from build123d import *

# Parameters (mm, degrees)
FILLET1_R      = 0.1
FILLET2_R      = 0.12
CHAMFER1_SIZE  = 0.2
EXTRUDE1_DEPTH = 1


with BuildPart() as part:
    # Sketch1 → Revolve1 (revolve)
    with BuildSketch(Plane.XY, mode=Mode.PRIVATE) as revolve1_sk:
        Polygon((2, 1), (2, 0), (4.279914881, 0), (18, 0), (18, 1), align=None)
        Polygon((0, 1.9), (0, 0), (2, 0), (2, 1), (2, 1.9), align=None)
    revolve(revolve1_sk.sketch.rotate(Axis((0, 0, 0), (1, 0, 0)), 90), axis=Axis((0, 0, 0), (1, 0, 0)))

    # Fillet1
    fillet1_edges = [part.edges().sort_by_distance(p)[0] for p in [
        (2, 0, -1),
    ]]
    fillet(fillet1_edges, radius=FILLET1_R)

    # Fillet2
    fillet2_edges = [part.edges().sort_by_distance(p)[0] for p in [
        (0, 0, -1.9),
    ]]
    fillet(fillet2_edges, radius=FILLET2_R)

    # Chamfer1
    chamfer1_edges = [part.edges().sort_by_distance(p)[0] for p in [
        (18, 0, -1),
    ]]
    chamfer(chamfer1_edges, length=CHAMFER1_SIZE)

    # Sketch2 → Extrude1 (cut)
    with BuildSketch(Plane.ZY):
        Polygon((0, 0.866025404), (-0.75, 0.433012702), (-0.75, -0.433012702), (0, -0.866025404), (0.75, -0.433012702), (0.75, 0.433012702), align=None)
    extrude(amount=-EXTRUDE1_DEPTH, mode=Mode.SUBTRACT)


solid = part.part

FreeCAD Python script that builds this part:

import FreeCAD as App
import Part
import Sketcher

V = App.Vector
Q = App.Units.Quantity


def edges_at(feature, points):
    """Names of the edges that pass closest to the given points."""
    edges = feature.Shape.Edges
    near = lambda p: min(range(len(edges)), key=lambda i: edges[i].distToShape(Part.Vertex(*p))[0])
    return sorted({f"Edge{near(p) + 1}" for p in points})

doc = App.newDocument("Part")
body = doc.addObject("PartDesign::Body", "Body")

sketch1 = body.newObject("Sketcher::SketchObject", "Sketch")
sketch1.AttachmentSupport = (doc.getObject("XY_Plane"), [""])
sketch1.MapMode = "FlatFace"
sketch1.addGeometry(Part.LineSegment(V(18, 0, 0), V(18, 1, 0)), False)
sketch1.addGeometry(Part.LineSegment(V(18, 1, 0), V(2, 1, 0)), False)
sketch1.addGeometry(Part.LineSegment(V(2, 1, 0), V(2, 1.9, 0)), False)
sketch1.addGeometry(Part.LineSegment(V(2, 1.9, 0), V(0, 1.9, 0)), False)
sketch1.addGeometry(Part.LineSegment(V(0, 1.9, 0), V(0, 0, 0)), False)
sketch1.addGeometry(Part.LineSegment(V(0, 0, 0), V(18, 0, 0)), False)
sketch1.addConstraint(Sketcher.Constraint("Coincident", 0, 2, 1, 1))
sketch1.addConstraint(Sketcher.Constraint("Coincident", 1, 2, 2, 1))
sketch1.addConstraint(Sketcher.Constraint("Coincident", 2, 2, 3, 1))
sketch1.addConstraint(Sketcher.Constraint("Coincident", 3, 2, 4, 1))
sketch1.addConstraint(Sketcher.Constraint("Coincident", 4, 2, 5, 1))
sketch1.addConstraint(Sketcher.Constraint("Coincident", 5, 2, 0, 1))
sketch1.addConstraint(Sketcher.Constraint("Vertical", 0))
sketch1.addConstraint(Sketcher.Constraint("Horizontal", 1))
sketch1.addConstraint(Sketcher.Constraint("Vertical", 2))
sketch1.addConstraint(Sketcher.Constraint("Horizontal", 3))
sketch1.addConstraint(Sketcher.Constraint("Vertical", 4))
sketch1.addConstraint(Sketcher.Constraint("Horizontal", 5))
sketch1.addConstraint(Sketcher.Constraint("Coincident", 4, 2, -1, 1))
sketch1.addConstraint(Sketcher.Constraint("DistanceX", 1, 2, 1, 1, 16.0))
sketch1.addConstraint(Sketcher.Constraint("DistanceX", 3, 2, 3, 1, 2.0))
sketch1.addConstraint(Sketcher.Constraint("DistanceY", 0, 1, 0, 2, 1.0))
sketch1.addConstraint(Sketcher.Constraint("DistanceY", 2, 1, 2, 2, 0.9))
revolution = body.newObject("PartDesign::Revolution", "Revolution")
revolution.Profile = sketch1
revolution.ReferenceAxis = (sketch1, ["H_Axis"])
revolution.Angle = 360
doc.recompute()

fillet = body.newObject("PartDesign::Fillet", "Fillet")
fillet.Base = (revolution, edges_at(revolution, [(2, 0, -1)]))
fillet.Radius = 0.1
doc.recompute()

fillet2 = body.newObject("PartDesign::Fillet", "Fillet001")
fillet2.Base = (fillet, edges_at(fillet, [(0, 0, -1.9)]))
fillet2.Radius = 0.12
doc.recompute()

chamfer = body.newObject("PartDesign::Chamfer", "Chamfer")
chamfer.Base = (fillet2, edges_at(fillet2, [(18, 0, -1)]))
chamfer.Size = 0.2

sketch2 = body.newObject("Sketcher::SketchObject", "Sketch001")
sketch2.AttachmentSupport = (doc.getObject("YZ_Plane"), [""])
sketch2.MapMode = "FlatFace"
sketch2.addGeometry(Part.LineSegment(V(0.866025, 0, 0), V(0.433013, -0.75, 0)), False)
sketch2.addGeometry(Part.LineSegment(V(0.433013, -0.75, 0), V(-0.433013, -0.75, 0)), False)
sketch2.addGeometry(Part.LineSegment(V(-0.433013, -0.75, 0), V(-0.866025, 0, 0)), False)
sketch2.addGeometry(Part.LineSegment(V(-0.866025, 0, 0), V(-0.433013, 0.75, 0)), False)
sketch2.addGeometry(Part.LineSegment(V(-0.433013, 0.75, 0), V(0.433013, 0.75, 0)), False)
sketch2.addGeometry(Part.LineSegment(V(0.433013, 0.75, 0), V(0.866025, 0, 0)), False)
sketch2.addConstraint(Sketcher.Constraint("Coincident", 0, 2, 1, 1))
sketch2.addConstraint(Sketcher.Constraint("Coincident", 1, 2, 2, 1))
sketch2.addConstraint(Sketcher.Constraint("Coincident", 2, 2, 3, 1))
sketch2.addConstraint(Sketcher.Constraint("Coincident", 3, 2, 4, 1))
sketch2.addConstraint(Sketcher.Constraint("Coincident", 4, 2, 5, 1))
sketch2.addConstraint(Sketcher.Constraint("Coincident", 5, 2, 0, 1))
sketch2.addConstraint(Sketcher.Constraint("Horizontal", 1))
sketch2.addConstraint(Sketcher.Constraint("Horizontal", 4))
sketch2.addConstraint(Sketcher.Constraint("Symmetric", 0, 2, 3, 2, -1, 1))
sketch2.addConstraint(Sketcher.Constraint("Symmetric", 2, 2, 5, 2, -1, 1))
sketch2.addConstraint(Sketcher.Constraint("PointOnObject", 2, 2, -1))
sketch2.addConstraint(Sketcher.Constraint("Parallel", 2, 5))
sketch2.addConstraint(Sketcher.Constraint("Vertical", 1, 2, 3, 2))
sketch2.addConstraint(Sketcher.Constraint("Angle", 0, Q("-120 deg")))
sketch2.addConstraint(Sketcher.Constraint("DistanceY", 1, 2, 3, 2, 1.5))
sketch2.addConstraint(Sketcher.Constraint("DistanceX", 1, 2, 1, 1, 0.866025))
pocket1 = body.newObject("PartDesign::Pocket", "Pocket")
pocket1.Profile = sketch2
pocket1.Length = 1
pocket1.Reversed = True

doc.recompute()
